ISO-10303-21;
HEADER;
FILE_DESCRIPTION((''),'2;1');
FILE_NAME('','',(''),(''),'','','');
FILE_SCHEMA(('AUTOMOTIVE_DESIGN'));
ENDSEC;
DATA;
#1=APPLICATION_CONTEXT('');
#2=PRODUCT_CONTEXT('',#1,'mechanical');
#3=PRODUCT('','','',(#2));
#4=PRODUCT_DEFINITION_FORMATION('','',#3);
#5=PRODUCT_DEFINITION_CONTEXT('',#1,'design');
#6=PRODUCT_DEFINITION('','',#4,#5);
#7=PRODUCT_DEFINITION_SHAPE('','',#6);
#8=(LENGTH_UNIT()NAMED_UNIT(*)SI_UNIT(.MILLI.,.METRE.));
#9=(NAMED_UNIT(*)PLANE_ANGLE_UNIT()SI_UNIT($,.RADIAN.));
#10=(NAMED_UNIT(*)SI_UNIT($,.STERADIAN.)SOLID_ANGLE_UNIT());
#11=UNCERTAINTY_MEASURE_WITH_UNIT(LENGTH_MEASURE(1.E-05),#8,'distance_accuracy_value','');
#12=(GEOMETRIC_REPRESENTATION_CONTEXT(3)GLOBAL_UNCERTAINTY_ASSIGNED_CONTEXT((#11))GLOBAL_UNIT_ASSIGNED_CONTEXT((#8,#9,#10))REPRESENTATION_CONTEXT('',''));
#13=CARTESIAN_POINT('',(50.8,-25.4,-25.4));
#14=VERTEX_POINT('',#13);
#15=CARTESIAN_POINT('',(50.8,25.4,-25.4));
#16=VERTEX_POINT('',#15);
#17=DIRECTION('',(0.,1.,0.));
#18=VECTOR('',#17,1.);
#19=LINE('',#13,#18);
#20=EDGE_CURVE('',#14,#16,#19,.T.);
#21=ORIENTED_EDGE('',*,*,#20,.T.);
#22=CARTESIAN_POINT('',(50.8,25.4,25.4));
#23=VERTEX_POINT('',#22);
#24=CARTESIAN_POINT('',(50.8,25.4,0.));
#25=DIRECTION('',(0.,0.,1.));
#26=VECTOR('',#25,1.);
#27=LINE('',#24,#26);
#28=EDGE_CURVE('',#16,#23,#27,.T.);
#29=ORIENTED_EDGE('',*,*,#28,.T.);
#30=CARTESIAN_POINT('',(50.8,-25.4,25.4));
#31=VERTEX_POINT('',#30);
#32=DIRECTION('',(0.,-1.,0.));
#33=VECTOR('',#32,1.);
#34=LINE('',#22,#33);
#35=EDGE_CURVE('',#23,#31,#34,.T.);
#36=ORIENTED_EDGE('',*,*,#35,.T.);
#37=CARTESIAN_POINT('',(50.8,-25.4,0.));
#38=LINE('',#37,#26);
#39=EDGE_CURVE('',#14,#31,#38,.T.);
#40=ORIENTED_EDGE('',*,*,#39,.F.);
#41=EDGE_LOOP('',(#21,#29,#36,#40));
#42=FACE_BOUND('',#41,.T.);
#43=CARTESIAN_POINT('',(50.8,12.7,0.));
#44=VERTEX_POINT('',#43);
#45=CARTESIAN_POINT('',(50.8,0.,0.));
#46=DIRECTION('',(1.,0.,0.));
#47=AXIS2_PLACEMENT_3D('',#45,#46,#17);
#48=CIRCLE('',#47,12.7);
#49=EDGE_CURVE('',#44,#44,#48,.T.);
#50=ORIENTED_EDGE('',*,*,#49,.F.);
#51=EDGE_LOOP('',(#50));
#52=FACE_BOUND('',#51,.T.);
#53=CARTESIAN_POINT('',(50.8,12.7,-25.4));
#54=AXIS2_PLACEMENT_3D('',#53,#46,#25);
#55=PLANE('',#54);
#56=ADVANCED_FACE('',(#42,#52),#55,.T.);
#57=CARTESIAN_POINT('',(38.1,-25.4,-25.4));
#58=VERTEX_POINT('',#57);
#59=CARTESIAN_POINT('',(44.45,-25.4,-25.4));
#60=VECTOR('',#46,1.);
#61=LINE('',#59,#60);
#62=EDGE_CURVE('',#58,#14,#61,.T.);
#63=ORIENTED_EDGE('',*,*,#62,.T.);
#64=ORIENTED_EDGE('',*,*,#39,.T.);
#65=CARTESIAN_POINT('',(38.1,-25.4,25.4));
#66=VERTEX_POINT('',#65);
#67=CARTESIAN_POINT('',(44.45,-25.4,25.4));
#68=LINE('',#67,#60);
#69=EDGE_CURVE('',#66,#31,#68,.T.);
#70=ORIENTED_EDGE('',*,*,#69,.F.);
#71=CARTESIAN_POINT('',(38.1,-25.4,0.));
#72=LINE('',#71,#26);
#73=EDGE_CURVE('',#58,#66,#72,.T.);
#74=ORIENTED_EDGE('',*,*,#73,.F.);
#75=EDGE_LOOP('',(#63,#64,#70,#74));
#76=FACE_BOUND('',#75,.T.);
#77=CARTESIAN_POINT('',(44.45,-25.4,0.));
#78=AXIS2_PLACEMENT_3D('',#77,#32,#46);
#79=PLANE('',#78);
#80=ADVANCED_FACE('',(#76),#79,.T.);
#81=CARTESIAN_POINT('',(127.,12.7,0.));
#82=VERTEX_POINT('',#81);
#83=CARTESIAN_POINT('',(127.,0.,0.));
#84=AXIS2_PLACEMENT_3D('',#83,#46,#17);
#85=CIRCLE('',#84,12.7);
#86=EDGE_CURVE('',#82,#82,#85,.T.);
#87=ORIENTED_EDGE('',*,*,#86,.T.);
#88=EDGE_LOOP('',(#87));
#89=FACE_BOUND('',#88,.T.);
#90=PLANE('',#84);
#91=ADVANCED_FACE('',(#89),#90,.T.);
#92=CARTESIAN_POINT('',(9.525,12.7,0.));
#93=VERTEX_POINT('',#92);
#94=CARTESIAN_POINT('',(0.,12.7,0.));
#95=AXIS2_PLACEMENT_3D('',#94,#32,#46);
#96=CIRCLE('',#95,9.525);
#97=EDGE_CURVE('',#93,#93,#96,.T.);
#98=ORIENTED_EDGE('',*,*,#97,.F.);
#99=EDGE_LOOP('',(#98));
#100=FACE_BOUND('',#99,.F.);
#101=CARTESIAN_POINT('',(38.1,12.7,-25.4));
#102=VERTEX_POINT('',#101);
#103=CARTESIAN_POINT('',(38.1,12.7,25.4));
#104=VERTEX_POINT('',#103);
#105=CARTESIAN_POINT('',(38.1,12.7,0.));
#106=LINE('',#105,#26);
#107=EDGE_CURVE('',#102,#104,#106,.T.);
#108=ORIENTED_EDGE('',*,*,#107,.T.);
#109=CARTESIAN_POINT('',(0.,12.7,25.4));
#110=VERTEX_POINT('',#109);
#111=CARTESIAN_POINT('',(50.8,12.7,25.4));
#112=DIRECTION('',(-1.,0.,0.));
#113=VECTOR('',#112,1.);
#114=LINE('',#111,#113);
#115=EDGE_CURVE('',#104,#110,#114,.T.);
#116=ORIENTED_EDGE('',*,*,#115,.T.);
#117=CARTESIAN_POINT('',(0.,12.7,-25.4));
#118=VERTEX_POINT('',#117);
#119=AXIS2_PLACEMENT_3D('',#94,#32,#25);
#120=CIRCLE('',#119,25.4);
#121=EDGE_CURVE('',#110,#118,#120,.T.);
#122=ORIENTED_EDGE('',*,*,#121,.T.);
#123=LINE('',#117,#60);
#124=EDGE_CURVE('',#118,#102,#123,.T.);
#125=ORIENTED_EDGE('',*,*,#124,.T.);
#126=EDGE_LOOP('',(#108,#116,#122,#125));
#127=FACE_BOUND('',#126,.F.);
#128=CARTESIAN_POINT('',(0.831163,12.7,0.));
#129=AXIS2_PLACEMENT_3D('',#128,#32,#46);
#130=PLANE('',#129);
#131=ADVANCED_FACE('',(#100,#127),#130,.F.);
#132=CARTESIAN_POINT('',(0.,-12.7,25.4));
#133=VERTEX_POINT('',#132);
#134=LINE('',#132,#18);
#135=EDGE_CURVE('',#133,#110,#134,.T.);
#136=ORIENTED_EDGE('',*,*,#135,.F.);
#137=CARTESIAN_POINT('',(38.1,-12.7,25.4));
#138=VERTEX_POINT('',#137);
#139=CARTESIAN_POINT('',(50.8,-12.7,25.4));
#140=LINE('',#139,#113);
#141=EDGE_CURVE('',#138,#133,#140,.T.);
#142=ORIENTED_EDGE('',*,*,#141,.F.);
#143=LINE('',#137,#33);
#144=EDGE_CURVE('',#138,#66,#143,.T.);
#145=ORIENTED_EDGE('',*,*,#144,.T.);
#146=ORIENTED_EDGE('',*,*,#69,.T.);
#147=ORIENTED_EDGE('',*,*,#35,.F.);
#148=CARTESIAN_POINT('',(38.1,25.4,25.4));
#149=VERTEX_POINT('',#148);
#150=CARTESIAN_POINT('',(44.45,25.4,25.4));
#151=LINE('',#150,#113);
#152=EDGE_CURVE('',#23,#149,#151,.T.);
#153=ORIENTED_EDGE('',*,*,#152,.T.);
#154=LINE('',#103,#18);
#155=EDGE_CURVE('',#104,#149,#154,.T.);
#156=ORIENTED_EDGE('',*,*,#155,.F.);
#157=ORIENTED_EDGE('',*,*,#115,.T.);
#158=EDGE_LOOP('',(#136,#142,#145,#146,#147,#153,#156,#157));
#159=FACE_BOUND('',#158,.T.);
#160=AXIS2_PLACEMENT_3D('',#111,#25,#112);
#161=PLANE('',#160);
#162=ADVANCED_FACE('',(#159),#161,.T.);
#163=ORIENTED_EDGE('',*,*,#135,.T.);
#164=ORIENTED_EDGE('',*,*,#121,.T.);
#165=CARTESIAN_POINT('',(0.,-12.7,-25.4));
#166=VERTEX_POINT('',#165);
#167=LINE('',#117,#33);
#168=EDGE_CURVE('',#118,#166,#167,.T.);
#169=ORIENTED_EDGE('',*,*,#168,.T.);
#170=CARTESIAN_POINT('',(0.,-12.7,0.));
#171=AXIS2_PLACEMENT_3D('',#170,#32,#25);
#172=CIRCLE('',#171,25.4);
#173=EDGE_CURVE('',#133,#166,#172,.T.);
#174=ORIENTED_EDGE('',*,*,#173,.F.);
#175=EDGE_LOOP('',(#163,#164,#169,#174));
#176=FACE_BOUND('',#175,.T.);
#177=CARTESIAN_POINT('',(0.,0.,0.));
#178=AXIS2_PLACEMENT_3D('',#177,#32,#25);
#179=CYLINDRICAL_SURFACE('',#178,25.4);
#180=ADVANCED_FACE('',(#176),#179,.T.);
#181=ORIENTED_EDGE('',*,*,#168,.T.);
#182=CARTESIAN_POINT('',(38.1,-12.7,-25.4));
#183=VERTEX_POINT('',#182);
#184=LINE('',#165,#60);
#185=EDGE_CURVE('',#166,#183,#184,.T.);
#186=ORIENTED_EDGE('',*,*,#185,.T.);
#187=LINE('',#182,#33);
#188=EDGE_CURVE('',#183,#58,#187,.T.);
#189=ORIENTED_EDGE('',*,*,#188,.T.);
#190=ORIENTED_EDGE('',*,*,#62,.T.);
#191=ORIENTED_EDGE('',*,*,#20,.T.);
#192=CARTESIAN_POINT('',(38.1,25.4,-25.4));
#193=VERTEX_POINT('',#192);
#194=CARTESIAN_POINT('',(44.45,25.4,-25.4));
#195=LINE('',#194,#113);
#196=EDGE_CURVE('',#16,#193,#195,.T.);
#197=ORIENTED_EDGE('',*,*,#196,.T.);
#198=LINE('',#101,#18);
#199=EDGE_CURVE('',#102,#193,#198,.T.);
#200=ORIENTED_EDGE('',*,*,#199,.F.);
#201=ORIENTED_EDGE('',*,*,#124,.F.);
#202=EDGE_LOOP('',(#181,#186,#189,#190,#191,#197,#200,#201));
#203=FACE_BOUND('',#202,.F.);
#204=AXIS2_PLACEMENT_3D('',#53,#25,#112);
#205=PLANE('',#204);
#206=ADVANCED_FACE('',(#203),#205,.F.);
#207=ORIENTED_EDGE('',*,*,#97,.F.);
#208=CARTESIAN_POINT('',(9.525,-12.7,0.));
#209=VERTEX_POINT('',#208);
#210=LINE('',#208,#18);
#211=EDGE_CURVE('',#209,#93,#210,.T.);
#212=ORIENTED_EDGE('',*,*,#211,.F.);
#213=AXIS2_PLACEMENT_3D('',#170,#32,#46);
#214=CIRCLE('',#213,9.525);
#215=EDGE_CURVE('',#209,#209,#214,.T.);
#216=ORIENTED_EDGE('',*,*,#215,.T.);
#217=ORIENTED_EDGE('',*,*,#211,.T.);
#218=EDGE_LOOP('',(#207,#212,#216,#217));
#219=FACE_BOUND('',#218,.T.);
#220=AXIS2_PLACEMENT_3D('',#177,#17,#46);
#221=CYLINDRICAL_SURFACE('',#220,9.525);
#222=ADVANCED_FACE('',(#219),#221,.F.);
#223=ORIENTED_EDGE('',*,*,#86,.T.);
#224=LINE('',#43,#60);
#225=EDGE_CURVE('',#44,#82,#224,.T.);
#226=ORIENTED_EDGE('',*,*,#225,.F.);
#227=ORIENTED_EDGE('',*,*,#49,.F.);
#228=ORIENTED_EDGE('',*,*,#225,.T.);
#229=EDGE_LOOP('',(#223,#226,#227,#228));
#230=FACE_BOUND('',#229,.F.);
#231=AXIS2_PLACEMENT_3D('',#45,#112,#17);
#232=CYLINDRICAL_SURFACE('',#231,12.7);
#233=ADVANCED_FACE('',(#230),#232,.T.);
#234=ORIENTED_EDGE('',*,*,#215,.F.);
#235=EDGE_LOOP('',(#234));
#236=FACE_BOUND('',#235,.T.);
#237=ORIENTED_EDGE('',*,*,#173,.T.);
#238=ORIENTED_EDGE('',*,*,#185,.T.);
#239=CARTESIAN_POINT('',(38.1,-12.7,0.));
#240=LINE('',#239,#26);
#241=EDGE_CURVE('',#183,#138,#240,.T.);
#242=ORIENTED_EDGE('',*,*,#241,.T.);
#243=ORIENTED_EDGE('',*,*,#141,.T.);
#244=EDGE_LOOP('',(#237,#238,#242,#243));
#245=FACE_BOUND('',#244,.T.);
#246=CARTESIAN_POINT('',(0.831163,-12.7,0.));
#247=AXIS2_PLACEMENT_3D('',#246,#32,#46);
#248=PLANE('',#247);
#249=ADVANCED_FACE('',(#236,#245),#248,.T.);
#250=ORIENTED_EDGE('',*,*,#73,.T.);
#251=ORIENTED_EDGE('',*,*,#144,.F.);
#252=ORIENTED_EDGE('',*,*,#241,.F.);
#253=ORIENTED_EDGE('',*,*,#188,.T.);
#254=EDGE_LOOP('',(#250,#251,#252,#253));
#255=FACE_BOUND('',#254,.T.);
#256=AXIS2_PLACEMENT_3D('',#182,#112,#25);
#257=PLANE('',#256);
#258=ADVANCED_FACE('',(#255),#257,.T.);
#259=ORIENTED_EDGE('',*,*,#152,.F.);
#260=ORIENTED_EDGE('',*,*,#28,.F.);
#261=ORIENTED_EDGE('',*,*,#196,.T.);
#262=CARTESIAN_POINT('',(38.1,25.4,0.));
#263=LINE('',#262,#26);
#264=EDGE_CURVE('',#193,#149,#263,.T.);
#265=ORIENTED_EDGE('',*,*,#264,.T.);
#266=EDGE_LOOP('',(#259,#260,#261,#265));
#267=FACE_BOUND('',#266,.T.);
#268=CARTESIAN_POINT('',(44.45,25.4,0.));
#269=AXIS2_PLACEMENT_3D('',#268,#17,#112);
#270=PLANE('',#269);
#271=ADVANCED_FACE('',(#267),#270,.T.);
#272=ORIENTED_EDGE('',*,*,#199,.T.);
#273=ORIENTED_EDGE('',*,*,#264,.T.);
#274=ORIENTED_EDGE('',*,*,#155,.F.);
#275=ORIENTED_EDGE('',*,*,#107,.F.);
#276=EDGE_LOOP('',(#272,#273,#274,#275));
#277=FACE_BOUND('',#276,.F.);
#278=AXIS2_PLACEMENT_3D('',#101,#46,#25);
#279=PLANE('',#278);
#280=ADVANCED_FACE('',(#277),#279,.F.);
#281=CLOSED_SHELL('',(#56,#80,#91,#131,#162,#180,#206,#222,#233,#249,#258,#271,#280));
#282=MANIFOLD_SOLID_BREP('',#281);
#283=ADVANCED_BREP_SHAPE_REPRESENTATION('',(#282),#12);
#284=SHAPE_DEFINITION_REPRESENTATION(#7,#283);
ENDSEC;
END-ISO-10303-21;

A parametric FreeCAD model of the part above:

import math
import FreeCAD as App
import Part
import Sketcher

V = App.Vector
Q = App.Units.Quantity


def add_polygon(sketch, points):
    """Adds a closed chain of lines whose ends are joined by coincident constraints."""
    first, n = sketch.GeometryCount, len(points)
    for a, b in zip(points, points[1:] + points[:1]):
        sketch.addGeometry(Part.LineSegment(App.Vector(*a, 0), App.Vector(*b, 0)), False)
    for i in range(n):
        sketch.addConstraint(Sketcher.Constraint("Coincident", first + i, 2, first + (i + 1) % n, 1))

doc = App.newDocument("Part")
body = doc.addObject("PartDesign::Body", "Body")

sketch1 = doc.addObject("Sketcher::SketchObject", "Sketch")
body.addObject(sketch1)
sketch1.AttachmentSupport = (doc.XZ_Plane, [""])
sketch1.MapMode = "FlatFace"
sketch1.addGeometry(Part.ArcOfCircle(Part.Circle(V(0, 0, 0), V(0, 0, 1), 25), math.radians(90), math.radians(270)), False)
sketch1.addGeometry(Part.LineSegment(V(0, -25, 0), V(51, -25, 0)), False)
sketch1.addGeometry(Part.LineSegment(V(51, -25, 0), V(51, 25, 0)), False)
sketch1.addGeometry(Part.LineSegment(V(51, 25, 0), V(0, 25, 0)), False)
sketch1.addGeometry(Part.Circle(V(0, 0, 0), V(0, 0, 1), 10), False)
sketch1.addConstraint(Sketcher.Constraint("Tangent", 0, 2, 1, 1))
sketch1.addConstraint(Sketcher.Constraint("Coincident", 1, 2, 2, 1))
sketch1.addConstraint(Sketcher.Constraint("Coincident", 2, 2, 3, 1))
sketch1.addConstraint(Sketcher.Constraint("Tangent", 3, 2, 0, 1))
sketch1.addConstraint(Sketcher.Constraint("Horizontal", 1))
sketch1.addConstraint(Sketcher.Constraint("Vertical", 2))
sketch1.addConstraint(Sketcher.Constraint("Horizontal", 3))
sketch1.addConstraint(Sketcher.Constraint("Coincident", 0, 3, -1, 1))
sketch1.addConstraint(Sketcher.Constraint("Coincident", 4, 3, -1, 1))
sketch1.addConstraint(Sketcher.Constraint("Equal", 3, 2))
sketch1.addConstraint(Sketcher.Constraint("Radius", 0, Q("1 in")))
sketch1.addConstraint(Sketcher.Constraint("Diameter", 4, Q("0.75 in")))
pad1 = doc.addObject("PartDesign::Pad", "Pad")
body.addObject(pad1)
pad1.Profile = sketch1
pad1.Length = Q("1 in")
pad1.Midplane = True

sketch2 = doc.addObject("Sketcher::SketchObject", "Sketch001")
body.addObject(sketch2)
sketch2.AttachmentSupport = (doc.XZ_Plane, [""])
sketch2.MapMode = "FlatFace"
sketch2.AttachmentOffset = App.Placement(V(0, 0, 0.5 * 25.4), App.Rotation())
add_polygon(sketch2, [(38, 25), (38, -25), (51, -25), (51, 25)])
sketch2.addConstraint(Sketcher.Constraint("Vertical", 0))
sketch2.addConstraint(Sketcher.Constraint("Horizontal", 1))
sketch2.addConstraint(Sketcher.Constraint("Vertical", 2))
sketch2.addConstraint(Sketcher.Constraint("Horizontal", 3))
sketch2.addConstraint(Sketcher.Constraint("DistanceY", 0, 2, 0, 1, Q("2 in")))
sketch2.addConstraint(Sketcher.Constraint("DistanceX", 1, 1, 1, 2, Q("0.5 in")))
sketch2.addConstraint(Sketcher.Constraint("DistanceY", 0, 2, -1, 1, Q("1 in")))
sketch2.addConstraint(Sketcher.Constraint("DistanceX", -1, 1, 1, 2, Q("2 in")))
pad2 = doc.addObject("PartDesign::Pad", "Pad001")
body.addObject(pad2)
pad2.Profile = sketch2
pad2.Length = Q("0.5 in")

sketch3 = doc.addObject("Sketcher::SketchObject", "Sketch002")
body.addObject(sketch3)
sketch3.AttachmentSupport = (doc.XZ_Plane, [""])
sketch3.MapMode = "FlatFace"
sketch3.AttachmentOffset = App.Placement(V(0, 0, -0.5 * 25.4), App.Rotation())
add_polygon(sketch3, [(51, 25), (51, -25), (38, -25), (38, 25)])
sketch3.addConstraint(Sketcher.Constraint("Vertical", 0))
sketch3.addConstraint(Sketcher.Constraint("Horizontal", 1))
sketch3.addConstraint(Sketcher.Constraint("Vertical", 2))
sketch3.addConstraint(Sketcher.Constraint("Horizontal", 3))
sketch3.addConstraint(Sketcher.Constraint("DistanceY", 0, 2, 0, 1, Q("2 in")))
sketch3.addConstraint(Sketcher.Constraint("DistanceX", 1, 2, 1, 1, Q("0.5 in")))
sketch3.addConstraint(Sketcher.Constraint("DistanceX", -1, 1, 0, 2, Q("2 in")))
sketch3.addConstraint(Sketcher.Constraint("DistanceY", 0, 2, -1, 1, Q("1 in")))
pad3 = doc.addObject("PartDesign::Pad", "Pad002")
body.addObject(pad3)
pad3.Profile = sketch3
pad3.Length = Q("0.5 in")
pad3.Reversed = True

sketch4 = doc.addObject("Sketcher::SketchObject", "Sketch003")
body.addObject(sketch4)
sketch4.AttachmentSupport = (doc.YZ_Plane, [""])
sketch4.MapMode = "FlatFace"
sketch4.AttachmentOffset = App.Placement(V(0, 0, 2 * 25.4), App.Rotation())
sketch4.addGeometry(Part.Circle(V(0, 0, 0), V(0, 0, 1), 13), False)
sketch4.addConstraint(Sketcher.Constraint("Coincident", 0, 3, -1, 1))
sketch4.addConstraint(Sketcher.Constraint("Diameter", 0, Q("1 in")))
pad4 = doc.addObject("PartDesign::Pad", "Pad003")
body.addObject(pad4)
pad4.Profile = sketch4
pad4.Length = Q("3 in")

doc.recompute()
